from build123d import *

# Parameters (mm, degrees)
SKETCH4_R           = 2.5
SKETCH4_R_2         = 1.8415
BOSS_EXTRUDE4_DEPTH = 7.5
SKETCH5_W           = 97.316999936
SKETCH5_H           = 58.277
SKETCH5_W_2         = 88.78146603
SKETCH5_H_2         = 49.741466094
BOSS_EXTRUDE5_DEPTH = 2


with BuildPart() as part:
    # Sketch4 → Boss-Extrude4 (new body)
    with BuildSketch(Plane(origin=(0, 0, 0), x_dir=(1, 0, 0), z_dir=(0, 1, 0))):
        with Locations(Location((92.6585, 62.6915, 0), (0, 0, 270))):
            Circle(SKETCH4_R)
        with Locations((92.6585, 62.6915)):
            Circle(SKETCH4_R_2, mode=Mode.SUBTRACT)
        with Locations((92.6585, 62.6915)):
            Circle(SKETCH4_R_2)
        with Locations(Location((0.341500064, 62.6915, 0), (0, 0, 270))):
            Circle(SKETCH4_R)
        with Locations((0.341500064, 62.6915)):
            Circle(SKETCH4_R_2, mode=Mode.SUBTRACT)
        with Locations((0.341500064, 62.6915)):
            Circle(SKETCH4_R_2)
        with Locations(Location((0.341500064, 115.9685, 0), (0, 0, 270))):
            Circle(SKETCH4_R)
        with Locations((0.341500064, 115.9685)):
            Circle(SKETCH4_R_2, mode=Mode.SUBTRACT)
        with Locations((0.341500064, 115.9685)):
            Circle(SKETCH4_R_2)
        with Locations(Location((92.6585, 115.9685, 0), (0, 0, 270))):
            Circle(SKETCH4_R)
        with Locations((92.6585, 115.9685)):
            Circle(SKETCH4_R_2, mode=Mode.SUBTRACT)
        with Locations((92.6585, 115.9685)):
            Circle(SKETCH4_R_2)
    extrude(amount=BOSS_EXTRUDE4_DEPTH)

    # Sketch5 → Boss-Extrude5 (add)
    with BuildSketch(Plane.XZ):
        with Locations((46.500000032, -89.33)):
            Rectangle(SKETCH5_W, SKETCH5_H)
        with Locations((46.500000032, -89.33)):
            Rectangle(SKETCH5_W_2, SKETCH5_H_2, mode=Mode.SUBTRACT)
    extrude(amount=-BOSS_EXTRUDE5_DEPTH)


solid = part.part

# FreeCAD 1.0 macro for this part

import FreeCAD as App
import Part
import Sketcher

V = App.Vector
Q = App.Units.Quantity

doc = App.newDocument("Part")
body = doc.addObject("PartDesign::Body", "Body")
body.AllowCompound = True

sketch1 = doc.addObject("Sketcher::SketchObject", "Sketch")
body.addObject(sketch1)
sketch1.AttachmentSupport = (doc.XZ_Plane, [""])
sketch1.MapMode = "FlatFace"
sketch1.addGeometry(Part.Circle(V(92.7, -62.7, 0), V(0, 0, 1), 2.5), False)
sketch1.addGeometry(Part.Circle(V(0.3, -62.7, 0), V(0, 0, 1), 2.5), False)
sketch1.addGeometry(Part.Circle(V(0.3, -116, 0), V(0, 0, 1), 2.5), False)
sketch1.addGeometry(Part.Circle(V(92.7, -116, 0), V(0, 0, 1), 2.5), False)
sketch1.addConstraint(Sketcher.Constraint("Equal", 0, 1))
sketch1.addConstraint(Sketcher.Constraint("Equal", 1, 2))
sketch1.addConstraint(Sketcher.Constraint("Equal", 2, 3))
sketch1.addConstraint(Sketcher.Constraint("Horizontal", 0, 3, 1, 3))
sketch1.addConstraint(Sketcher.Constraint("Horizontal", 2, 3, 3, 3))
sketch1.addConstraint(Sketcher.Constraint("Vertical", 1, 3, 2, 3))
sketch1.addConstraint(Sketcher.Constraint("Vertical", 0, 3, 3, 3))
sketch1.addConstraint(Sketcher.Constraint("Diameter", 0, Q("5 mm")))
sketch1.addConstraint(Sketcher.Constraint("DistanceX", 1, 3, 0, 3, Q("92.317 mm")))
sketch1.addConstraint(Sketcher.Constraint("DistanceY", 2, 3, 1, 3, Q("53.277 mm")))
sketch1.addConstraint(Sketcher.Constraint("DistanceX", -1, 1, 0, 3, Q("92.6585 mm")))
sketch1.addConstraint(Sketcher.Constraint("DistanceY", 0, 3, -1, 1, Q("62.6915 mm")))
pad1 = doc.addObject("PartDesign::Pad", "Pad")
body.addObject(pad1)
pad1.Profile = sketch1
pad1.Length = 7.5
pad1.Reversed = True

sketch2 = doc.addObject("Sketcher::SketchObject", "Sketch001")
body.addObject(sketch2)
sketch2.AttachmentSupport = (doc.XZ_Plane, [""])
sketch2.MapMode = "FlatFace"
sketch2.addGeometry(Part.LineSegment(V(-2, -60, 0), V(-2, -118, 0)), False)
sketch2.addGeometry(Part.LineSegment(V(-2, -118, 0), V(95, -118, 0)), False)
sketch2.addGeometry(Part.LineSegment(V(95, -118, 0), V(95, -60, 0)), False)
sketch2.addGeometry(Part.LineSegment(V(95, -60, 0), V(-2, -60, 0)), False)
sketch2.addGeometry(Part.LineSegment(V(91, -114, 0), V(2, -114, 0)), False)
sketch2.addGeometry(Part.LineSegment(V(2, -114, 0), V(2, -64, 0)), False)
sketch2.addGeometry(Part.LineSegment(V(2, -64, 0), V(91, -64, 0)), False)
sketch2.addGeometry(Part.LineSegment(V(91, -64, 0), V(91, -114, 0)), False)
sketch2.addConstraint(Sketcher.Constraint("Coincident", 0, 2, 1, 1))
sketch2.addConstraint(Sketcher.Constraint("Coincident", 1, 2, 2, 1))
sketch2.addConstraint(Sketcher.Constraint("Coincident", 2, 2, 3, 1))
sketch2.addConstraint(Sketcher.Constraint("Coincident", 3, 2, 0, 1))
sketch2.addConstraint(Sketcher.Constraint("Coincident", 4, 2, 5, 1))
sketch2.addConstraint(Sketcher.Constraint("Coincident", 5, 2, 6, 1))
sketch2.addConstraint(Sketcher.Constraint("Coincident", 6, 2, 7, 1))
sketch2.addConstraint(Sketcher.Constraint("Coincident", 7, 2, 4, 1))
sketch2.addConstraint(Sketcher.Constraint("Vertical", 0))
sketch2.addConstraint(Sketcher.Constraint("Horizontal", 1))
sketch2.addConstraint(Sketcher.Constraint("Vertical", 2))
sketch2.addConstraint(Sketcher.Constraint("Horizontal", 3))
sketch2.addConstraint(Sketcher.Constraint("Horizontal", 4))
sketch2.addConstraint(Sketcher.Constraint("Vertical", 5))
sketch2.addConstraint(Sketcher.Constraint("Horizontal", 6))
sketch2.addConstraint(Sketcher.Constraint("Vertical", 7))
sketch2.addConstraint(Sketcher.Constraint("DistanceX", 1, 1, 1, 2, Q("97.317 mm")))
sketch2.addConstraint(Sketcher.Constraint("DistanceY", 0, 2, 0, 1, Q("58.277 mm")))
sketch2.addConstraint(Sketcher.Constraint("DistanceX", 0, 2, -1, 1, Q("2.1585 mm")))
sketch2.addConstraint(Sketcher.Constraint("DistanceY", 0, 2, -1, 1, Q("118.4685 mm")))
sketch2.addConstraint(Sketcher.Constraint("DistanceX", 4, 2, 4, 1, Q("88.781466 mm")))
sketch2.addConstraint(Sketcher.Constraint("DistanceY", 5, 1, 5, 2, Q("49.741466 mm")))
sketch2.addConstraint(Sketcher.Constraint("DistanceX", -1, 1, 4, 2, Q("2.109267 mm")))
sketch2.addConstraint(Sketcher.Constraint("DistanceY", 4, 2, -1, 1, Q("114.200733 mm")))
pad2 = doc.addObject("PartDesign::Pad", "Pad001")
body.addObject(pad2)
pad2.Profile = sketch2
pad2.Length = 2
pad2.Reversed = True

doc.recompute()
